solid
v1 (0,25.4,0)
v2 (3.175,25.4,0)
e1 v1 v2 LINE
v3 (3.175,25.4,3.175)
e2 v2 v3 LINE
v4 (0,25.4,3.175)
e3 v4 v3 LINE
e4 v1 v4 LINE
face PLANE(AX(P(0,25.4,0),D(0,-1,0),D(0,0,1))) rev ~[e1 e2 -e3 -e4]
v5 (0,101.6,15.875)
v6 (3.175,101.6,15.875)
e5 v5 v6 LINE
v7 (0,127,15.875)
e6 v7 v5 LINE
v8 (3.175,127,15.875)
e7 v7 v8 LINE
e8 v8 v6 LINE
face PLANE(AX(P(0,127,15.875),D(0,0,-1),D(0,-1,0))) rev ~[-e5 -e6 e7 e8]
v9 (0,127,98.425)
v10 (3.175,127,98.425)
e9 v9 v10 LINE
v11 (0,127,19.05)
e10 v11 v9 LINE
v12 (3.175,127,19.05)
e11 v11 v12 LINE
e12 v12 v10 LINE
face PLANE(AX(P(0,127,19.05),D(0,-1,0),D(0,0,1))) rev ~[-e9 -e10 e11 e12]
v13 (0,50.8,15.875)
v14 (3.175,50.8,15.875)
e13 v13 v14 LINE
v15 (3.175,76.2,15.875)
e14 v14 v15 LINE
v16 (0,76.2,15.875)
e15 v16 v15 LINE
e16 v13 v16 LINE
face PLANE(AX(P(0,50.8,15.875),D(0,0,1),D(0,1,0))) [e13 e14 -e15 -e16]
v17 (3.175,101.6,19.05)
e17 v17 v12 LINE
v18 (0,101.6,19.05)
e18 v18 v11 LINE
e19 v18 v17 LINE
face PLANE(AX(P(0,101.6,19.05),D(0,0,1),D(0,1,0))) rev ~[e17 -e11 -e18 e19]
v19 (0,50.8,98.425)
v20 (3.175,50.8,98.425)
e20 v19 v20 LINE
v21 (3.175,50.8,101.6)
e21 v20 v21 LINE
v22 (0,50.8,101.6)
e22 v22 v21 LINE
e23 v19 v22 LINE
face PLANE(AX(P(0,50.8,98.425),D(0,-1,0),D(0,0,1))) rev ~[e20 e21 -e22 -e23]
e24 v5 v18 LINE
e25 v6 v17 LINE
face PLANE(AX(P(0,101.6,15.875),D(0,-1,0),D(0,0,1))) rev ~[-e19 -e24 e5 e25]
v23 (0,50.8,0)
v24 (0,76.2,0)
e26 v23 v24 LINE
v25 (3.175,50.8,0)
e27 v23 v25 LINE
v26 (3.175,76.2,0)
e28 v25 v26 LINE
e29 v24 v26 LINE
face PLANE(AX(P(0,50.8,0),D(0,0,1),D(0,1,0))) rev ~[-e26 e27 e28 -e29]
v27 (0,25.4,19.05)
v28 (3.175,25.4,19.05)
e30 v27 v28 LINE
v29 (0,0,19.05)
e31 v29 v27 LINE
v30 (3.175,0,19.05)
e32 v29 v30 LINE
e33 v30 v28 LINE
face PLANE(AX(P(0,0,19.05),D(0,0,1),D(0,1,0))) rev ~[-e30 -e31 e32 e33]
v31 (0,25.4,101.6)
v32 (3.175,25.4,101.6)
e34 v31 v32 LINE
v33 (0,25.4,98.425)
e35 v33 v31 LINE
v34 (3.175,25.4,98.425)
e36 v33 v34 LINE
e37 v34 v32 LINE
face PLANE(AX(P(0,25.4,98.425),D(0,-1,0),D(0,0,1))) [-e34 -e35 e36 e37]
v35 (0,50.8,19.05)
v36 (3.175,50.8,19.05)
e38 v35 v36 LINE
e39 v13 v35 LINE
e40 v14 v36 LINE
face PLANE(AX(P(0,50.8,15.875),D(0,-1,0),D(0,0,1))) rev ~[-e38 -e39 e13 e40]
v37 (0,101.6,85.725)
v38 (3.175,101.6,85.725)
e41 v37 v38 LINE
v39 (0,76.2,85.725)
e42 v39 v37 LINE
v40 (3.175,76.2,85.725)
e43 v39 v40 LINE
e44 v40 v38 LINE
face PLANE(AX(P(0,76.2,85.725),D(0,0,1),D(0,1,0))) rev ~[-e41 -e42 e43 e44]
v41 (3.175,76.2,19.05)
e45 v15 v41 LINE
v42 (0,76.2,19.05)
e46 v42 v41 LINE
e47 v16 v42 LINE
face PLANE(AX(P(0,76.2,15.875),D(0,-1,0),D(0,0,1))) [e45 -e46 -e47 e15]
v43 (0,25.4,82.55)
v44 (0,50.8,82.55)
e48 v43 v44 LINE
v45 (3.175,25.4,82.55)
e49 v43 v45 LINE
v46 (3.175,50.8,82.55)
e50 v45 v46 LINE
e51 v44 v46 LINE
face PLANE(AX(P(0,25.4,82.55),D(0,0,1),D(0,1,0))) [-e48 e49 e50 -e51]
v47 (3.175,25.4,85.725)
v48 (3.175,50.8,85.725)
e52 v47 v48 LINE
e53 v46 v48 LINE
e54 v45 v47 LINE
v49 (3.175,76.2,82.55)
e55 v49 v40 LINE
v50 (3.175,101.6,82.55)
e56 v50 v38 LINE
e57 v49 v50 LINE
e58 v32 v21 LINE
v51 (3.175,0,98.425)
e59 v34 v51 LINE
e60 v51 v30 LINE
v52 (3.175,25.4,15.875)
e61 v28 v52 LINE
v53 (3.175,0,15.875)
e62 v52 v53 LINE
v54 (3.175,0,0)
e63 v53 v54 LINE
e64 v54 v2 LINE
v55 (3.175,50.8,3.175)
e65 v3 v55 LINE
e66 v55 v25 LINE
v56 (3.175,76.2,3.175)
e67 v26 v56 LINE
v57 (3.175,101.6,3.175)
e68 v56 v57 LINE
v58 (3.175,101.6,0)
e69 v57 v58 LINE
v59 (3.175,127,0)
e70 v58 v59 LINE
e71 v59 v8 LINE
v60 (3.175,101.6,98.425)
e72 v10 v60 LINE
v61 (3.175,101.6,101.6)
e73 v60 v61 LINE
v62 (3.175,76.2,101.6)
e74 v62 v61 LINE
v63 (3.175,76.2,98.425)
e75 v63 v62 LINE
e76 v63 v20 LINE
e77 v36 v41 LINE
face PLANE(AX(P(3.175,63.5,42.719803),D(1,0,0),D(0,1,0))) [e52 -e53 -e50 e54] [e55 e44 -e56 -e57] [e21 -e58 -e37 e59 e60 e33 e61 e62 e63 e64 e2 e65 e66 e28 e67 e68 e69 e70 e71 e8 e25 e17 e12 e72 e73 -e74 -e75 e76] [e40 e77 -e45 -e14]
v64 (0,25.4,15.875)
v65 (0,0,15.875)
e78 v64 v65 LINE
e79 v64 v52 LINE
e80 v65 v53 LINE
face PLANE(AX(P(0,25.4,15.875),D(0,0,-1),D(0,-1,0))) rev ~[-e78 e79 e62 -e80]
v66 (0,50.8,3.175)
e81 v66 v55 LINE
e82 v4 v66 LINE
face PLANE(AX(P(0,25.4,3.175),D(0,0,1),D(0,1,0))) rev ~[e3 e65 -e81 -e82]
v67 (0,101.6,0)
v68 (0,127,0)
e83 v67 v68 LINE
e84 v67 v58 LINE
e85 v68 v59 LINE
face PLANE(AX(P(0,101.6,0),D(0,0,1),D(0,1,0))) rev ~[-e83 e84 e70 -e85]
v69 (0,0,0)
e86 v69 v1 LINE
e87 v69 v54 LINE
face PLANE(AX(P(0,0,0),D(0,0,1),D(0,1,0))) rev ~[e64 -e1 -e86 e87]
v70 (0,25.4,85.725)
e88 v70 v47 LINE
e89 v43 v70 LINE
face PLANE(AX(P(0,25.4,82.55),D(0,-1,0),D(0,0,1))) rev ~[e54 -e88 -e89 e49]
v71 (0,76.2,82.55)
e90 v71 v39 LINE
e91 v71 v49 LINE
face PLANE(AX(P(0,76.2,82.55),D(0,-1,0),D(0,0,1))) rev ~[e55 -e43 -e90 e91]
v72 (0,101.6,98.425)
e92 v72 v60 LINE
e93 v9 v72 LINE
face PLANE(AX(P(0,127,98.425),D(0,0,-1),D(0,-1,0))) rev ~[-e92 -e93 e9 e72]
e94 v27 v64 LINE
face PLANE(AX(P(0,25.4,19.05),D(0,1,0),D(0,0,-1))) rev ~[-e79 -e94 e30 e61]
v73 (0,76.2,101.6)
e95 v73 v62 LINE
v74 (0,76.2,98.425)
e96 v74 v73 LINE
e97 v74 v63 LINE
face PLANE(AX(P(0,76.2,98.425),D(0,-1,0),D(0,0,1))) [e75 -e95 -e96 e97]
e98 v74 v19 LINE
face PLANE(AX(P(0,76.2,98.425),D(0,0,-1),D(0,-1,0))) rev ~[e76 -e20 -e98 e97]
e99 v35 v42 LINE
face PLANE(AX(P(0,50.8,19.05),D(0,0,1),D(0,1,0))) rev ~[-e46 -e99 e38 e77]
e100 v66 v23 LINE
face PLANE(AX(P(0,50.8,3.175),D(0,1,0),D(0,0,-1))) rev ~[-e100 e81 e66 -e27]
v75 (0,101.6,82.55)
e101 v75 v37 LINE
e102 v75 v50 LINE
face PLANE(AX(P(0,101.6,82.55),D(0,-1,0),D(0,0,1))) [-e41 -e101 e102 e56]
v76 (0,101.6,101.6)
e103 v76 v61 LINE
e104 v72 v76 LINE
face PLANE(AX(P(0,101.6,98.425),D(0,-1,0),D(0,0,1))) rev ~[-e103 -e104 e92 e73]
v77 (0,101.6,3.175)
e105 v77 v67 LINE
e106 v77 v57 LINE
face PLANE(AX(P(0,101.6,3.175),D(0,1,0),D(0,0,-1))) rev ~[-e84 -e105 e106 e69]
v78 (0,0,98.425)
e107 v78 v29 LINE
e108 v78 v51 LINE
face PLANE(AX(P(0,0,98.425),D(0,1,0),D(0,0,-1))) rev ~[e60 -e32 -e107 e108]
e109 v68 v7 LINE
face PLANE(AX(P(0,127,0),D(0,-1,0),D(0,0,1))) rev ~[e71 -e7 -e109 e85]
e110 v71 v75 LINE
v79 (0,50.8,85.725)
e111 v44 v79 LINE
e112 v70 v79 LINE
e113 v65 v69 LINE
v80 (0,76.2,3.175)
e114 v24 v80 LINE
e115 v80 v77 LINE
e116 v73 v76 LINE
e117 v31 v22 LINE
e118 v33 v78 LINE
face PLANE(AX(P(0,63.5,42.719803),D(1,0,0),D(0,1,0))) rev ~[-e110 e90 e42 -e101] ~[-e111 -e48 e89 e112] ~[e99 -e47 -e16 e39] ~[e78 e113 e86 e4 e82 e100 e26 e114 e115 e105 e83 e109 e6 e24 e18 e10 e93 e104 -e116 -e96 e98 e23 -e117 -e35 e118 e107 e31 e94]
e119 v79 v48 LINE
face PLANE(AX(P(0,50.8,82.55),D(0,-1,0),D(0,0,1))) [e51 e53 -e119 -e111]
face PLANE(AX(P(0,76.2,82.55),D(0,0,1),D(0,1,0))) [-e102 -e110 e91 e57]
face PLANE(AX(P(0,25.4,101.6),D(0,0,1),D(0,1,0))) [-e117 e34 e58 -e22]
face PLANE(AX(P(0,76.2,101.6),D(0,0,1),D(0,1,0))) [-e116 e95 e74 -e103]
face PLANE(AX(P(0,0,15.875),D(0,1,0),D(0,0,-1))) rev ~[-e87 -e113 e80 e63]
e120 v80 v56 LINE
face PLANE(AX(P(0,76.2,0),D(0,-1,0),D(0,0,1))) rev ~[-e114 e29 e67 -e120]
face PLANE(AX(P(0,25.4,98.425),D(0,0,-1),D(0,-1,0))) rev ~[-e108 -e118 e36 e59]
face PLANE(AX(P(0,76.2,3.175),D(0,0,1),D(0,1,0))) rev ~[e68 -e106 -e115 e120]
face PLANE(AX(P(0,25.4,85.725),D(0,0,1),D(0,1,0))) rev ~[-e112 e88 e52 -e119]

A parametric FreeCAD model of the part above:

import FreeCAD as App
import Part
import Sketcher
from FreeCAD import Vector
Q = App.Units.Quantity

doc = App.newDocument("Part")
body = doc.addObject("PartDesign::Body", "Body")

# Sketch on YZ plane
sketch1 = body.newObject("Sketcher::SketchObject", "Sketch")
sketch1.AttachmentSupport = (doc.getObject("YZ_Plane"), [""])
sketch1.MapMode = "FlatFace"
sketch1.addGeometry([
    Part.LineSegment(Vector(0, 15.875, 0), Vector(0, 0, 0)),  # 0
    Part.LineSegment(Vector(0, 0, 0), Vector(25.4, 0, 0)),  # 1
    Part.LineSegment(Vector(25.4, 0, 0), Vector(25.4, 3.175, 0)),  # 2
    Part.LineSegment(Vector(25.4, 3.175, 0), Vector(50.8, 3.175, 0)),  # 3
    Part.LineSegment(Vector(50.8, 3.175, 0), Vector(50.8, 0, 0)),  # 4
    Part.LineSegment(Vector(50.8, 0, 0), Vector(76.2, 0, 0)),  # 5
    Part.LineSegment(Vector(76.2, 0, 0), Vector(76.2, 3.175, 0)),  # 6
    Part.LineSegment(Vector(76.2, 3.175, 0), Vector(101.6, 3.175, 0)),  # 7
    Part.LineSegment(Vector(101.6, 3.175, 0), Vector(101.6, 0, 0)),  # 8
    Part.LineSegment(Vector(101.6, 0, 0), Vector(127, 0, 0)),  # 9
    Part.LineSegment(Vector(127, 0, 0), Vector(127, 15.875, 0)),  # 10
    Part.LineSegment(Vector(127, 15.875, 0), Vector(101.6, 15.875, 0)),  # 11
    Part.LineSegment(Vector(101.6, 15.875, 0), Vector(101.6, 19.05, 0)),  # 12
    Part.LineSegment(Vector(101.6, 19.05, 0), Vector(127, 19.05, 0)),  # 13
    Part.LineSegment(Vector(127, 19.05, 0), Vector(127, 98.425, 0)),  # 14
    Part.LineSegment(Vector(127, 98.425, 0), Vector(101.6, 98.425, 0)),  # 15
    Part.LineSegment(Vector(101.6, 98.425, 0), Vector(101.6, 101.6, 0)),  # 16
    Part.LineSegment(Vector(101.6, 101.6, 0), Vector(76.2, 101.6, 0)),  # 17
    Part.LineSegment(Vector(76.2, 101.6, 0), Vector(76.2, 98.425, 0)),  # 18
    Part.LineSegment(Vector(76.2, 98.425, 0), Vector(50.8, 98.425, 0)),  # 19
    Part.LineSegment(Vector(50.8, 98.425, 0), Vector(50.8, 101.6, 0)),  # 20
    Part.LineSegment(Vector(50.8, 101.6, 0), Vector(25.4, 101.6, 0)),  # 21
    Part.LineSegment(Vector(25.4, 101.6, 0), Vector(25.4, 98.425, 0)),  # 22
    Part.LineSegment(Vector(25.4, 98.425, 0), Vector(0, 98.425, 0)),  # 23
    Part.LineSegment(Vector(0, 98.425, 0), Vector(0, 19.05, 0)),  # 24
    Part.LineSegment(Vector(0, 19.05, 0), Vector(25.4, 19.05, 0)),  # 25
    Part.LineSegment(Vector(25.4, 19.05, 0), Vector(25.4, 15.875, 0)),  # 26
    Part.LineSegment(Vector(25.4, 15.875, 0), Vector(0, 15.875, 0)),  # 27
    Part.LineSegment(Vector(76.2, 15.875, 0), Vector(50.8, 15.875, 0)),  # 28
    Part.LineSegment(Vector(50.8, 15.875, 0), Vector(50.8, 19.05, 0)),  # 29
    Part.LineSegment(Vector(50.8, 19.05, 0), Vector(76.2, 19.05, 0)),  # 30
    Part.LineSegment(Vector(76.2, 19.05, 0), Vector(76.2, 15.875, 0)),  # 31
    Part.LineSegment(Vector(50.8, 82.55, 0), Vector(25.4, 82.55, 0)),  # 32
    Part.LineSegment(Vector(25.4, 82.55, 0), Vector(25.4, 85.725, 0)),  # 33
    Part.LineSegment(Vector(25.4, 85.725, 0), Vector(50.8, 85.725, 0)),  # 34
    Part.LineSegment(Vector(50.8, 85.725, 0), Vector(50.8, 82.55, 0)),  # 35
    Part.LineSegment(Vector(101.6, 82.55, 0), Vector(76.2, 82.55, 0)),  # 36
    Part.LineSegment(Vector(76.2, 82.55, 0), Vector(76.2, 85.725, 0)),  # 37
    Part.LineSegment(Vector(76.2, 85.725, 0), Vector(101.6, 85.725, 0)),  # 38
    Part.LineSegment(Vector(101.6, 85.725, 0), Vector(101.6, 82.55, 0)),  # 39
], False)
sketch1.addConstraint([
    Sketcher.Constraint("Coincident", 0, 2, 1, 1),
    Sketcher.Constraint("Coincident", 1, 2, 2, 1),
    Sketcher.Constraint("Coincident", 2, 2, 3, 1),
    Sketcher.Constraint("Coincident", 3, 2, 4, 1),
    Sketcher.Constraint("Coincident", 4, 2, 5, 1),
    Sketcher.Constraint("Coincident", 5, 2, 6, 1),
    Sketcher.Constraint("Coincident", 6, 2, 7, 1),
    Sketcher.Constraint("Coincident", 7, 2, 8, 1),
    Sketcher.Constraint("Coincident", 8, 2, 9, 1),
    Sketcher.Constraint("Coincident", 9, 2, 10, 1),
    Sketcher.Constraint("Coincident", 10, 2, 11, 1),
    Sketcher.Constraint("Coincident", 11, 2, 12, 1),
    Sketcher.Constraint("Coincident", 12, 2, 13, 1),
    Sketcher.Constraint("Coincident", 13, 2, 14, 1),
    Sketcher.Constraint("Coincident", 14, 2, 15, 1),
    Sketcher.Constraint("Coincident", 15, 2, 16, 1),
    Sketcher.Constraint("Coincident", 16, 2, 17, 1),
    Sketcher.Constraint("Coincident", 17, 2, 18, 1),
    Sketcher.Constraint("Coincident", 18, 2, 19, 1),
    Sketcher.Constraint("Coincident", 19, 2, 20, 1),
    Sketcher.Constraint("Coincident", 20, 2, 21, 1),
    Sketcher.Constraint("Coincident", 21, 2, 22, 1),
    Sketcher.Constraint("Coincident", 22, 2, 23, 1),
    Sketcher.Constraint("Coincident", 23, 2, 24, 1),
    Sketcher.Constraint("Coincident", 24, 2, 25, 1),
    Sketcher.Constraint("Coincident", 25, 2, 26, 1),
    Sketcher.Constraint("Coincident", 26, 2, 27, 1),
    Sketcher.Constraint("Coincident", 27, 2, 0, 1),
    Sketcher.Constraint("Coincident", 28, 2, 29, 1),
    Sketcher.Constraint("Coincident", 29, 2, 30, 1),
    Sketcher.Constraint("Coincident", 30, 2, 31, 1),
    Sketcher.Constraint("Coincident", 31, 2, 28, 1),
    Sketcher.Constraint("Coincident", 32, 2, 33, 1),
    Sketcher.Constraint("Coincident", 33, 2, 34, 1),
    Sketcher.Constraint("Coincident", 34, 2, 35, 1),
    Sketcher.Constraint("Coincident", 35, 2, 32, 1),
    Sketcher.Constraint("Coincident", 36, 2, 37, 1),
    Sketcher.Constraint("Coincident", 37, 2, 38, 1),
    Sketcher.Constraint("Coincident", 38, 2, 39, 1),
    Sketcher.Constraint("Coincident", 39, 2, 36, 1),
    Sketcher.Constraint("Vertical", 0),
    Sketcher.Constraint("Horizontal", 1),
    Sketcher.Constraint("Vertical", 2),
    Sketcher.Constraint("Horizontal", 3),
    Sketcher.Constraint("Vertical", 4),
    Sketcher.Constraint("Horizontal", 5),
    Sketcher.Constraint("Vertical", 6),
    Sketcher.Constraint("Horizontal", 7),
    Sketcher.Constraint("Vertical", 8),
    Sketcher.Constraint("Horizontal", 9),
    Sketcher.Constraint("Vertical", 10),
    Sketcher.Constraint("Horizontal", 11),
    Sketcher.Constraint("Vertical", 12),
    Sketcher.Constraint("Horizontal", 13),
    Sketcher.Constraint("Vertical", 14),
    Sketcher.Constraint("Horizontal", 15),
    Sketcher.Constraint("Vertical", 16),
    Sketcher.Constraint("Horizontal", 17),
    Sketcher.Constraint("Vertical", 18),
    Sketcher.Constraint("Horizontal", 19),
    Sketcher.Constraint("Vertical", 20),
    Sketcher.Constraint("Horizontal", 21),
    Sketcher.Constraint("Vertical", 22),
    Sketcher.Constraint("Horizontal", 23),
    Sketcher.Constraint("Vertical", 24),
    Sketcher.Constraint("Horizontal", 25),
    Sketcher.Constraint("Vertical", 26),
    Sketcher.Constraint("Horizontal", 27),
    Sketcher.Constraint("Horizontal", 28),
    Sketcher.Constraint("Vertical", 29),
    Sketcher.Constraint("Horizontal", 30),
    Sketcher.Constraint("Vertical", 31),
    Sketcher.Constraint("Horizontal", 32),
    Sketcher.Constraint("Vertical", 33),
    Sketcher.Constraint("Horizontal", 34),
    Sketcher.Constraint("Vertical", 35),
    Sketcher.Constraint("Horizontal", 36),
    Sketcher.Constraint("Vertical", 37),
    Sketcher.Constraint("Horizontal", 38),
    Sketcher.Constraint("Vertical", 39),
    Sketcher.Constraint("Coincident", 0, 2, -1, 1),
    Sketcher.Constraint("PointOnObject", 4, 2, -1),
    Sketcher.Constraint("PointOnObject", 8, 2, -1),
    Sketcher.Constraint("PointOnObject", 23, 2, -2),
    Sketcher.Constraint("Horizontal", 3, 2, 6, 2),
    Sketcher.Constraint("Horizontal", 15, 2, 18, 2),
    Sketcher.Constraint("Horizontal", 17, 2, 20, 2),
    Sketcher.Constraint("Horizontal", 19, 2, 22, 2),
    Sketcher.Constraint("Horizontal", 13, 2, 24, 2),
    Sketcher.Constraint("Horizontal", 11, 2, 26, 2),
    Sketcher.Constraint("Horizontal", 27, 2, 28, 2),
    Sketcher.Constraint("Horizontal", 25, 2, 29, 2),
    Sketcher.Constraint("Horizontal", 35, 2, 36, 2),
    Sketcher.Constraint("Horizontal", 34, 2, 37, 2),
    Sketcher.Constraint("Vertical", 8, 2, 11, 2),
    Sketcher.Constraint("Vertical", 10, 2, 13, 2),
    Sketcher.Constraint("Vertical", 12, 2, 15, 2),
    Sketcher.Constraint("Vertical", 6, 2, 17, 2),
    Sketcher.Constraint("Vertical", 4, 2, 19, 2),
    Sketcher.Constraint("Vertical", 2, 2, 21, 2),
    Sketcher.Constraint("Vertical", 22, 2, 25, 2),
    Sketcher.Constraint("Vertical", 20, 2, 28, 2),
    Sketcher.Constraint("Vertical", 18, 2, 30, 2),
    Sketcher.Constraint("Vertical", 26, 2, 32, 2),
    Sketcher.Constraint("Vertical", 29, 2, 34, 2),
    Sketcher.Constraint("Vertical", 31, 2, 36, 2),
    Sketcher.Constraint("Vertical", 16, 2, 38, 2),
    Sketcher.Constraint("Equal", 1, 3),
    Sketcher.Constraint("Equal", 3, 5),
    Sketcher.Constraint("Equal", 5, 7),
    Sketcher.Constraint("Equal", 7, 9),
    Sketcher.Constraint("Equal", 8, 12),
    Sketcher.Constraint("Equal", 12, 16),
    Sketcher.Constraint("Equal", 31, 33),
    Sketcher.Constraint("DistanceX", 1, 1, 1, 2, Q("1 in")),
    Sketcher.Constraint("DistanceY", -1, 1, 16, 2, Q("4 in")),
    Sketcher.Constraint("DistanceY", 7, 2, 10, 2, Q("0.5 in")),
    Sketcher.Constraint("DistanceY", 33, 2, 22, 2, Q("0.5 in")),
    Sketcher.Constraint("DistanceY", 0, 2, 0, 1, Q("0.625 in")),
])
pad1 = body.newObject("PartDesign::Pad", "Pad")
pad1.Profile = sketch1
pad1.Length = Q("0.125 in")

doc.recompute()
